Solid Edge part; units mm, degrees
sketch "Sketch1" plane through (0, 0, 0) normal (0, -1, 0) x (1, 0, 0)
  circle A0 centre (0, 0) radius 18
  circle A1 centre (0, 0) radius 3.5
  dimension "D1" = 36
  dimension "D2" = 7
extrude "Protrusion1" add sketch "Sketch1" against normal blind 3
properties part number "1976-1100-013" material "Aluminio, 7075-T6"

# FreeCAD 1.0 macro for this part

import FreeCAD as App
import Part
import Sketcher
from FreeCAD import Vector

doc = App.newDocument("Part")
body = doc.addObject("PartDesign::Body", "Body")

# Sketch on XZ plane
sketch1 = body.newObject("Sketcher::SketchObject", "Sketch")
sketch1.AttachmentSupport = (doc.getObject("XZ_Plane"), [""])
sketch1.MapMode = "FlatFace"
sketch1.addGeometry(Part.Circle(Vector(0, 0, 0), Vector(0, 0, 1), 18), False)
sketch1.addGeometry(Part.Circle(Vector(0, 0, 0), Vector(0, 0, 1), 3.5), False)
sketch1.addConstraint(Sketcher.Constraint("Coincident", 0, 3, -1, 1))
sketch1.addConstraint(Sketcher.Constraint("Coincident", 1, 3, -1, 1))
sketch1.addConstraint(Sketcher.Constraint("Diameter", 0, 36.0))
sketch1.addConstraint(Sketcher.Constraint("Diameter", 1, 7.0))
pad1 = body.newObject("PartDesign::Pad", "Pad")
pad1.Profile = sketch1
pad1.Length = 3
pad1.Reversed = True

doc.recompute()
